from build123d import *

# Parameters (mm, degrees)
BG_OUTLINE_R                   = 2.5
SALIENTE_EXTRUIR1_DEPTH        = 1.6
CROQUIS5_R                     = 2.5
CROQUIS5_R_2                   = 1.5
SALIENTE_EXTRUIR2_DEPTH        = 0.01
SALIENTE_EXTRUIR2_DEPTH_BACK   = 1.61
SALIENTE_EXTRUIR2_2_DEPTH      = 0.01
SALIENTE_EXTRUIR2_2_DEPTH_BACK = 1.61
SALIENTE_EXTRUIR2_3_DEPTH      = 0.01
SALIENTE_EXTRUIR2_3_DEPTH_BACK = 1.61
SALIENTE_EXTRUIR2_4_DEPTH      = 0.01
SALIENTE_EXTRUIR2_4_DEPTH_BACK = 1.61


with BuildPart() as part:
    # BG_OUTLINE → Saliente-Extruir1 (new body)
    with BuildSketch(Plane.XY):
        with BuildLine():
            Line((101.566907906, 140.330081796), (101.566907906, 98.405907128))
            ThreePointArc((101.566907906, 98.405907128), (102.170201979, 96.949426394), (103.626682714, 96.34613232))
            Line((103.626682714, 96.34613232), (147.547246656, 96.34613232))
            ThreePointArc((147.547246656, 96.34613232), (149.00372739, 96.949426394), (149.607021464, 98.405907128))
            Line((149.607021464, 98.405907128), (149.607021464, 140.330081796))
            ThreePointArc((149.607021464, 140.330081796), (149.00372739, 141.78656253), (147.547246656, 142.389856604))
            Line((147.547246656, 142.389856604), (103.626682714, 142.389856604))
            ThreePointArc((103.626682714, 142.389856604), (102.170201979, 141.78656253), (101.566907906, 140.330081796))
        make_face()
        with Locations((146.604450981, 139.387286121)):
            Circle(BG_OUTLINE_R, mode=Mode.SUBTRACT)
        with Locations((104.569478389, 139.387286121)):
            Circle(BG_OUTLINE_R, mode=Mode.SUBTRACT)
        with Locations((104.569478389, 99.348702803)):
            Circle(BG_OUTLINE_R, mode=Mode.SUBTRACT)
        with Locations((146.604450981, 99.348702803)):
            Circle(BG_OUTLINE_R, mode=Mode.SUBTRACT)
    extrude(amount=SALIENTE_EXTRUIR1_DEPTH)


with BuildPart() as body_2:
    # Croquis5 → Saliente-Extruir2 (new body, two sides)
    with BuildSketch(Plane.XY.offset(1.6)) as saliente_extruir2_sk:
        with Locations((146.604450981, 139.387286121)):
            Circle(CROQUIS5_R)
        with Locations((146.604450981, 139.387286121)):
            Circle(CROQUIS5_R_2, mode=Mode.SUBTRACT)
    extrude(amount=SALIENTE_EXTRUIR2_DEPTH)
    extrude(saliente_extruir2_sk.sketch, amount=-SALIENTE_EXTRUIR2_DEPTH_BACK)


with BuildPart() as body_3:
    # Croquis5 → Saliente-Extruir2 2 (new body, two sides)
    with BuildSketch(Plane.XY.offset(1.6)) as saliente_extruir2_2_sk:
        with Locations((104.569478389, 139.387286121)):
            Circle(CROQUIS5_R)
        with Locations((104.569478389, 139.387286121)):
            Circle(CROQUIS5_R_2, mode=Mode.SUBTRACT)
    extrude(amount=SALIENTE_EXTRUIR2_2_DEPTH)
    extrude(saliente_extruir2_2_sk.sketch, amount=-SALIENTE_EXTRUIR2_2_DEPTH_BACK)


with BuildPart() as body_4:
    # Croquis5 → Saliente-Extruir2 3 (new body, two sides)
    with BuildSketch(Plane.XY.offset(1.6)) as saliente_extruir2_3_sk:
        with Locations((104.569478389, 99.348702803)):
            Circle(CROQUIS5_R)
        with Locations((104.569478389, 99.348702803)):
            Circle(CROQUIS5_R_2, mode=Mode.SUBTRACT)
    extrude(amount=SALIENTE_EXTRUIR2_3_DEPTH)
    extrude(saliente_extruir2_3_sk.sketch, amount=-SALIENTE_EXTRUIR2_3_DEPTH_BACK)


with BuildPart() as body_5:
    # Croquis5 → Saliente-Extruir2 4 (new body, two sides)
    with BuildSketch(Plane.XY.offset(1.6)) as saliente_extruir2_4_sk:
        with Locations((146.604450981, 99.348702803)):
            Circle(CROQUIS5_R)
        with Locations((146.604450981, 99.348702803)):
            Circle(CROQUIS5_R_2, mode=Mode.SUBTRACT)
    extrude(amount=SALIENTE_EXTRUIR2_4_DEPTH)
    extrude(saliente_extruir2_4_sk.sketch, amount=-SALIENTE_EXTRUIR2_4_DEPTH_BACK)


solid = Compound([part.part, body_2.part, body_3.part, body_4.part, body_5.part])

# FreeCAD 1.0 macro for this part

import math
import FreeCAD as App
import Part
import Sketcher
from FreeCAD import Vector

doc = App.newDocument("Part")
body = doc.addObject("PartDesign::Body", "Body")

sketch1 = body.newObject("Sketcher::SketchObject", "Sketch")
sketch1.AttachmentSupport = (doc.getObject("XY_Plane"), [""])
sketch1.MapMode = "FlatFace"
sketch1.addGeometry(Part.LineSegment(Vector(101.6, 140.3, 0), Vector(101.6, 98.4, 0)), False)
sketch1.addGeometry(Part.ArcOfCircle(Part.Circle(Vector(103.6, 98.4, 0), Vector(0, 0, 1), 2.1), math.radians(180), math.radians(270)), False)
sketch1.addGeometry(Part.LineSegment(Vector(103.6, 96.3, 0), Vector(147.5, 96.3, 0)), False)
sketch1.addGeometry(Part.ArcOfCircle(Part.Circle(Vector(147.5, 98.4, 0), Vector(0, 0, 1), 2.1), math.radians(-90), math.radians(0)), False)
sketch1.addGeometry(Part.LineSegment(Vector(149.6, 98.4, 0), Vector(149.6, 140.3, 0)), False)
sketch1.addGeometry(Part.ArcOfCircle(Part.Circle(Vector(147.5, 140.3, 0), Vector(0, 0, 1), 2.1), math.radians(0), math.radians(90)), False)
sketch1.addGeometry(Part.LineSegment(Vector(147.5, 142.4, 0), Vector(103.6, 142.4, 0)), False)
sketch1.addGeometry(Part.ArcOfCircle(Part.Circle(Vector(103.6, 140.3, 0), Vector(0, 0, 1), 2.1), math.radians(90), math.radians(180)), False)
sketch1.addGeometry(Part.Circle(Vector(104.6, 99.3, 0), Vector(0, 0, 1), 2.5), False)
sketch1.addGeometry(Part.Circle(Vector(146.6, 99.3, 0), Vector(0, 0, 1), 2.5), False)
sketch1.addGeometry(Part.Circle(Vector(104.6, 139.4, 0), Vector(0, 0, 1), 2.5), False)
sketch1.addGeometry(Part.Circle(Vector(146.6, 139.4, 0), Vector(0, 0, 1), 2.5), False)
sketch1.addConstraint(Sketcher.Constraint("Tangent", 0, 2, 1, 1))
sketch1.addConstraint(Sketcher.Constraint("Tangent", 1, 2, 2, 1))
sketch1.addConstraint(Sketcher.Constraint("Tangent", 2, 2, 3, 1))
sketch1.addConstraint(Sketcher.Constraint("Tangent", 3, 2, 4, 1))
sketch1.addConstraint(Sketcher.Constraint("Tangent", 4, 2, 5, 1))
sketch1.addConstraint(Sketcher.Constraint("Tangent", 5, 2, 6, 1))
sketch1.addConstraint(Sketcher.Constraint("Tangent", 6, 2, 7, 1))
sketch1.addConstraint(Sketcher.Constraint("Tangent", 7, 2, 0, 1))
sketch1.addConstraint(Sketcher.Constraint("Vertical", 0))
sketch1.addConstraint(Sketcher.Constraint("Horizontal", 2))
sketch1.addConstraint(Sketcher.Constraint("Vertical", 4))
sketch1.addConstraint(Sketcher.Constraint("Horizontal", 6))
sketch1.addConstraint(Sketcher.Constraint("Equal", 1, 3))
sketch1.addConstraint(Sketcher.Constraint("Equal", 3, 5))
sketch1.addConstraint(Sketcher.Constraint("Equal", 5, 7))
sketch1.addConstraint(Sketcher.Constraint("Equal", 8, 9))
sketch1.addConstraint(Sketcher.Constraint("Equal", 9, 10))
sketch1.addConstraint(Sketcher.Constraint("Equal", 10, 11))
sketch1.addConstraint(Sketcher.Constraint("Horizontal", 8, 3, 9, 3))
sketch1.addConstraint(Sketcher.Constraint("Horizontal", 10, 3, 11, 3))
sketch1.addConstraint(Sketcher.Constraint("Vertical", 8, 3, 10, 3))
sketch1.addConstraint(Sketcher.Constraint("Vertical", 9, 3, 11, 3))
sketch1.addConstraint(Sketcher.Constraint("Diameter", 8, 5.0))
sketch1.addConstraint(Sketcher.Constraint("Radius", 1, 2.059775))
sketch1.addConstraint(Sketcher.Constraint("DistanceX", 2, 1, 2, 2, 43.920564))
sketch1.addConstraint(Sketcher.Constraint("DistanceY", 0, 2, 0, 1, 41.924175))
sketch1.addConstraint(Sketcher.Constraint("DistanceY", -1, 1, 5, 3, 140.330082))
sketch1.addConstraint(Sketcher.Constraint("DistanceX", -1, 1, 8, 3, 104.569478))
sketch1.addConstraint(Sketcher.Constraint("DistanceX", -1, 1, 9, 3, 146.604451))
sketch1.addConstraint(Sketcher.Constraint("DistanceX", -1, 1, 3, 2, 149.607021))
sketch1.addConstraint(Sketcher.Constraint("DistanceY", 8, 3, 7, 3, 40.981379))
sketch1.addConstraint(Sketcher.Constraint("DistanceY", 1, 3, 10, 3, 40.981379))
pad1 = body.newObject("PartDesign::Pad", "Pad")
pad1.Profile = sketch1
pad1.Length = 1.6
body2 = doc.addObject("PartDesign::Body", "Body001")

sketch2 = body2.newObject("Sketcher::SketchObject", "Sketch001")
sketch2.AttachmentSupport = (doc.getObject("XY_Plane001"), [""])
sketch2.MapMode = "FlatFace"
sketch2.AttachmentOffset = App.Placement(Vector(0, 0, 1.6), App.Rotation())
sketch2.addGeometry(Part.Circle(Vector(146.6, 139.4, 0), Vector(0, 0, 1), 2.5), False)
sketch2.addGeometry(Part.Circle(Vector(146.6, 139.4, 0), Vector(0, 0, 1), 1.5), False)
sketch2.addConstraint(Sketcher.Constraint("Coincident", 1, 3, 0, 3))
sketch2.addConstraint(Sketcher.Constraint("Diameter", 0, 5.0))
sketch2.addConstraint(Sketcher.Constraint("Diameter", 1, 3.0))
sketch2.addConstraint(Sketcher.Constraint("DistanceX", -1, 1, 0, 3, 146.604451))
sketch2.addConstraint(Sketcher.Constraint("DistanceY", -1, 1, 0, 3, 139.387286))
pad2 = body2.newObject("PartDesign::Pad", "Pad001")
pad2.Profile = sketch2
pad2.Type = "TwoLengths"
pad2.Length = 0.01
pad2.Length2 = 1.61
body3 = doc.addObject("PartDesign::Body", "Body002")

sketch3 = body3.newObject("Sketcher::SketchObject", "Sketch002")
sketch3.AttachmentSupport = (doc.getObject("XY_Plane002"), [""])
sketch3.MapMode = "FlatFace"
sketch3.AttachmentOffset = App.Placement(Vector(0, 0, 1.6), App.Rotation())
sketch3.addGeometry(Part.Circle(Vector(104.6, 139.4, 0), Vector(0, 0, 1), 2.5), False)
sketch3.addGeometry(Part.Circle(Vector(104.6, 139.4, 0), Vector(0, 0, 1), 1.5), False)
sketch3.addConstraint(Sketcher.Constraint("Coincident", 1, 3, 0, 3))
sketch3.addConstraint(Sketcher.Constraint("Diameter", 0, 5.0))
sketch3.addConstraint(Sketcher.Constraint("Diameter", 1, 3.0))
sketch3.addConstraint(Sketcher.Constraint("DistanceX", -1, 1, 0, 3, 104.569478))
sketch3.addConstraint(Sketcher.Constraint("DistanceY", -1, 1, 0, 3, 139.387286))
pad3 = body3.newObject("PartDesign::Pad", "Pad002")
pad3.Profile = sketch3
pad3.Type = "TwoLengths"
pad3.Length = 0.01
pad3.Length2 = 1.61
body4 = doc.addObject("PartDesign::Body", "Body003")

sketch4 = body4.newObject("Sketcher::SketchObject", "Sketch003")
sketch4.AttachmentSupport = (doc.getObject("XY_Plane003"), [""])
sketch4.MapMode = "FlatFace"
sketch4.AttachmentOffset = App.Placement(Vector(0, 0, 1.6), App.Rotation())
sketch4.addGeometry(Part.Circle(Vector(104.6, 99.3, 0), Vector(0, 0, 1), 2.5), False)
sketch4.addGeometry(Part.Circle(Vector(104.6, 99.3, 0), Vector(0, 0, 1), 1.5), False)
sketch4.addConstraint(Sketcher.Constraint("Coincident", 1, 3, 0, 3))
sketch4.addConstraint(Sketcher.Constraint("Diameter", 0, 5.0))
sketch4.addConstraint(Sketcher.Constraint("Diameter", 1, 3.0))
sketch4.addConstraint(Sketcher.Constraint("DistanceX", -1, 1, 0, 3, 104.569478))
sketch4.addConstraint(Sketcher.Constraint("DistanceY", -1, 1, 0, 3, 99.348703))
pad4 = body4.newObject("PartDesign::Pad", "Pad003")
pad4.Profile = sketch4
pad4.Type = "TwoLengths"
pad4.Length = 0.01
pad4.Length2 = 1.61
body5 = doc.addObject("PartDesign::Body", "Body004")

sketch5 = body5.newObject("Sketcher::SketchObject", "Sketch004")
sketch5.AttachmentSupport = (doc.getObject("XY_Plane004"), [""])
sketch5.MapMode = "FlatFace"
sketch5.AttachmentOffset = App.Placement(Vector(0, 0, 1.6), App.Rotation())
sketch5.addGeometry(Part.Circle(Vector(146.6, 99.3, 0), Vector(0, 0, 1), 2.5), False)
sketch5.addGeometry(Part.Circle(Vector(146.6, 99.3, 0), Vector(0, 0, 1), 1.5), False)
sketch5.addConstraint(Sketcher.Constraint("Coincident", 1, 3, 0, 3))
sketch5.addConstraint(Sketcher.Constraint("Diameter", 0, 5.0))
sketch5.addConstraint(Sketcher.Constraint("Diameter", 1, 3.0))
sketch5.addConstraint(Sketcher.Constraint("DistanceX", -1, 1, 0, 3, 146.604451))
sketch5.addConstraint(Sketcher.Constraint("DistanceY", -1, 1, 0, 3, 99.348703))
pad5 = body5.newObject("PartDesign::Pad", "Pad004")
pad5.Profile = sketch5
pad5.Type = "TwoLengths"
pad5.Length = 0.01
pad5.Length2 = 1.61

doc.recompute()
